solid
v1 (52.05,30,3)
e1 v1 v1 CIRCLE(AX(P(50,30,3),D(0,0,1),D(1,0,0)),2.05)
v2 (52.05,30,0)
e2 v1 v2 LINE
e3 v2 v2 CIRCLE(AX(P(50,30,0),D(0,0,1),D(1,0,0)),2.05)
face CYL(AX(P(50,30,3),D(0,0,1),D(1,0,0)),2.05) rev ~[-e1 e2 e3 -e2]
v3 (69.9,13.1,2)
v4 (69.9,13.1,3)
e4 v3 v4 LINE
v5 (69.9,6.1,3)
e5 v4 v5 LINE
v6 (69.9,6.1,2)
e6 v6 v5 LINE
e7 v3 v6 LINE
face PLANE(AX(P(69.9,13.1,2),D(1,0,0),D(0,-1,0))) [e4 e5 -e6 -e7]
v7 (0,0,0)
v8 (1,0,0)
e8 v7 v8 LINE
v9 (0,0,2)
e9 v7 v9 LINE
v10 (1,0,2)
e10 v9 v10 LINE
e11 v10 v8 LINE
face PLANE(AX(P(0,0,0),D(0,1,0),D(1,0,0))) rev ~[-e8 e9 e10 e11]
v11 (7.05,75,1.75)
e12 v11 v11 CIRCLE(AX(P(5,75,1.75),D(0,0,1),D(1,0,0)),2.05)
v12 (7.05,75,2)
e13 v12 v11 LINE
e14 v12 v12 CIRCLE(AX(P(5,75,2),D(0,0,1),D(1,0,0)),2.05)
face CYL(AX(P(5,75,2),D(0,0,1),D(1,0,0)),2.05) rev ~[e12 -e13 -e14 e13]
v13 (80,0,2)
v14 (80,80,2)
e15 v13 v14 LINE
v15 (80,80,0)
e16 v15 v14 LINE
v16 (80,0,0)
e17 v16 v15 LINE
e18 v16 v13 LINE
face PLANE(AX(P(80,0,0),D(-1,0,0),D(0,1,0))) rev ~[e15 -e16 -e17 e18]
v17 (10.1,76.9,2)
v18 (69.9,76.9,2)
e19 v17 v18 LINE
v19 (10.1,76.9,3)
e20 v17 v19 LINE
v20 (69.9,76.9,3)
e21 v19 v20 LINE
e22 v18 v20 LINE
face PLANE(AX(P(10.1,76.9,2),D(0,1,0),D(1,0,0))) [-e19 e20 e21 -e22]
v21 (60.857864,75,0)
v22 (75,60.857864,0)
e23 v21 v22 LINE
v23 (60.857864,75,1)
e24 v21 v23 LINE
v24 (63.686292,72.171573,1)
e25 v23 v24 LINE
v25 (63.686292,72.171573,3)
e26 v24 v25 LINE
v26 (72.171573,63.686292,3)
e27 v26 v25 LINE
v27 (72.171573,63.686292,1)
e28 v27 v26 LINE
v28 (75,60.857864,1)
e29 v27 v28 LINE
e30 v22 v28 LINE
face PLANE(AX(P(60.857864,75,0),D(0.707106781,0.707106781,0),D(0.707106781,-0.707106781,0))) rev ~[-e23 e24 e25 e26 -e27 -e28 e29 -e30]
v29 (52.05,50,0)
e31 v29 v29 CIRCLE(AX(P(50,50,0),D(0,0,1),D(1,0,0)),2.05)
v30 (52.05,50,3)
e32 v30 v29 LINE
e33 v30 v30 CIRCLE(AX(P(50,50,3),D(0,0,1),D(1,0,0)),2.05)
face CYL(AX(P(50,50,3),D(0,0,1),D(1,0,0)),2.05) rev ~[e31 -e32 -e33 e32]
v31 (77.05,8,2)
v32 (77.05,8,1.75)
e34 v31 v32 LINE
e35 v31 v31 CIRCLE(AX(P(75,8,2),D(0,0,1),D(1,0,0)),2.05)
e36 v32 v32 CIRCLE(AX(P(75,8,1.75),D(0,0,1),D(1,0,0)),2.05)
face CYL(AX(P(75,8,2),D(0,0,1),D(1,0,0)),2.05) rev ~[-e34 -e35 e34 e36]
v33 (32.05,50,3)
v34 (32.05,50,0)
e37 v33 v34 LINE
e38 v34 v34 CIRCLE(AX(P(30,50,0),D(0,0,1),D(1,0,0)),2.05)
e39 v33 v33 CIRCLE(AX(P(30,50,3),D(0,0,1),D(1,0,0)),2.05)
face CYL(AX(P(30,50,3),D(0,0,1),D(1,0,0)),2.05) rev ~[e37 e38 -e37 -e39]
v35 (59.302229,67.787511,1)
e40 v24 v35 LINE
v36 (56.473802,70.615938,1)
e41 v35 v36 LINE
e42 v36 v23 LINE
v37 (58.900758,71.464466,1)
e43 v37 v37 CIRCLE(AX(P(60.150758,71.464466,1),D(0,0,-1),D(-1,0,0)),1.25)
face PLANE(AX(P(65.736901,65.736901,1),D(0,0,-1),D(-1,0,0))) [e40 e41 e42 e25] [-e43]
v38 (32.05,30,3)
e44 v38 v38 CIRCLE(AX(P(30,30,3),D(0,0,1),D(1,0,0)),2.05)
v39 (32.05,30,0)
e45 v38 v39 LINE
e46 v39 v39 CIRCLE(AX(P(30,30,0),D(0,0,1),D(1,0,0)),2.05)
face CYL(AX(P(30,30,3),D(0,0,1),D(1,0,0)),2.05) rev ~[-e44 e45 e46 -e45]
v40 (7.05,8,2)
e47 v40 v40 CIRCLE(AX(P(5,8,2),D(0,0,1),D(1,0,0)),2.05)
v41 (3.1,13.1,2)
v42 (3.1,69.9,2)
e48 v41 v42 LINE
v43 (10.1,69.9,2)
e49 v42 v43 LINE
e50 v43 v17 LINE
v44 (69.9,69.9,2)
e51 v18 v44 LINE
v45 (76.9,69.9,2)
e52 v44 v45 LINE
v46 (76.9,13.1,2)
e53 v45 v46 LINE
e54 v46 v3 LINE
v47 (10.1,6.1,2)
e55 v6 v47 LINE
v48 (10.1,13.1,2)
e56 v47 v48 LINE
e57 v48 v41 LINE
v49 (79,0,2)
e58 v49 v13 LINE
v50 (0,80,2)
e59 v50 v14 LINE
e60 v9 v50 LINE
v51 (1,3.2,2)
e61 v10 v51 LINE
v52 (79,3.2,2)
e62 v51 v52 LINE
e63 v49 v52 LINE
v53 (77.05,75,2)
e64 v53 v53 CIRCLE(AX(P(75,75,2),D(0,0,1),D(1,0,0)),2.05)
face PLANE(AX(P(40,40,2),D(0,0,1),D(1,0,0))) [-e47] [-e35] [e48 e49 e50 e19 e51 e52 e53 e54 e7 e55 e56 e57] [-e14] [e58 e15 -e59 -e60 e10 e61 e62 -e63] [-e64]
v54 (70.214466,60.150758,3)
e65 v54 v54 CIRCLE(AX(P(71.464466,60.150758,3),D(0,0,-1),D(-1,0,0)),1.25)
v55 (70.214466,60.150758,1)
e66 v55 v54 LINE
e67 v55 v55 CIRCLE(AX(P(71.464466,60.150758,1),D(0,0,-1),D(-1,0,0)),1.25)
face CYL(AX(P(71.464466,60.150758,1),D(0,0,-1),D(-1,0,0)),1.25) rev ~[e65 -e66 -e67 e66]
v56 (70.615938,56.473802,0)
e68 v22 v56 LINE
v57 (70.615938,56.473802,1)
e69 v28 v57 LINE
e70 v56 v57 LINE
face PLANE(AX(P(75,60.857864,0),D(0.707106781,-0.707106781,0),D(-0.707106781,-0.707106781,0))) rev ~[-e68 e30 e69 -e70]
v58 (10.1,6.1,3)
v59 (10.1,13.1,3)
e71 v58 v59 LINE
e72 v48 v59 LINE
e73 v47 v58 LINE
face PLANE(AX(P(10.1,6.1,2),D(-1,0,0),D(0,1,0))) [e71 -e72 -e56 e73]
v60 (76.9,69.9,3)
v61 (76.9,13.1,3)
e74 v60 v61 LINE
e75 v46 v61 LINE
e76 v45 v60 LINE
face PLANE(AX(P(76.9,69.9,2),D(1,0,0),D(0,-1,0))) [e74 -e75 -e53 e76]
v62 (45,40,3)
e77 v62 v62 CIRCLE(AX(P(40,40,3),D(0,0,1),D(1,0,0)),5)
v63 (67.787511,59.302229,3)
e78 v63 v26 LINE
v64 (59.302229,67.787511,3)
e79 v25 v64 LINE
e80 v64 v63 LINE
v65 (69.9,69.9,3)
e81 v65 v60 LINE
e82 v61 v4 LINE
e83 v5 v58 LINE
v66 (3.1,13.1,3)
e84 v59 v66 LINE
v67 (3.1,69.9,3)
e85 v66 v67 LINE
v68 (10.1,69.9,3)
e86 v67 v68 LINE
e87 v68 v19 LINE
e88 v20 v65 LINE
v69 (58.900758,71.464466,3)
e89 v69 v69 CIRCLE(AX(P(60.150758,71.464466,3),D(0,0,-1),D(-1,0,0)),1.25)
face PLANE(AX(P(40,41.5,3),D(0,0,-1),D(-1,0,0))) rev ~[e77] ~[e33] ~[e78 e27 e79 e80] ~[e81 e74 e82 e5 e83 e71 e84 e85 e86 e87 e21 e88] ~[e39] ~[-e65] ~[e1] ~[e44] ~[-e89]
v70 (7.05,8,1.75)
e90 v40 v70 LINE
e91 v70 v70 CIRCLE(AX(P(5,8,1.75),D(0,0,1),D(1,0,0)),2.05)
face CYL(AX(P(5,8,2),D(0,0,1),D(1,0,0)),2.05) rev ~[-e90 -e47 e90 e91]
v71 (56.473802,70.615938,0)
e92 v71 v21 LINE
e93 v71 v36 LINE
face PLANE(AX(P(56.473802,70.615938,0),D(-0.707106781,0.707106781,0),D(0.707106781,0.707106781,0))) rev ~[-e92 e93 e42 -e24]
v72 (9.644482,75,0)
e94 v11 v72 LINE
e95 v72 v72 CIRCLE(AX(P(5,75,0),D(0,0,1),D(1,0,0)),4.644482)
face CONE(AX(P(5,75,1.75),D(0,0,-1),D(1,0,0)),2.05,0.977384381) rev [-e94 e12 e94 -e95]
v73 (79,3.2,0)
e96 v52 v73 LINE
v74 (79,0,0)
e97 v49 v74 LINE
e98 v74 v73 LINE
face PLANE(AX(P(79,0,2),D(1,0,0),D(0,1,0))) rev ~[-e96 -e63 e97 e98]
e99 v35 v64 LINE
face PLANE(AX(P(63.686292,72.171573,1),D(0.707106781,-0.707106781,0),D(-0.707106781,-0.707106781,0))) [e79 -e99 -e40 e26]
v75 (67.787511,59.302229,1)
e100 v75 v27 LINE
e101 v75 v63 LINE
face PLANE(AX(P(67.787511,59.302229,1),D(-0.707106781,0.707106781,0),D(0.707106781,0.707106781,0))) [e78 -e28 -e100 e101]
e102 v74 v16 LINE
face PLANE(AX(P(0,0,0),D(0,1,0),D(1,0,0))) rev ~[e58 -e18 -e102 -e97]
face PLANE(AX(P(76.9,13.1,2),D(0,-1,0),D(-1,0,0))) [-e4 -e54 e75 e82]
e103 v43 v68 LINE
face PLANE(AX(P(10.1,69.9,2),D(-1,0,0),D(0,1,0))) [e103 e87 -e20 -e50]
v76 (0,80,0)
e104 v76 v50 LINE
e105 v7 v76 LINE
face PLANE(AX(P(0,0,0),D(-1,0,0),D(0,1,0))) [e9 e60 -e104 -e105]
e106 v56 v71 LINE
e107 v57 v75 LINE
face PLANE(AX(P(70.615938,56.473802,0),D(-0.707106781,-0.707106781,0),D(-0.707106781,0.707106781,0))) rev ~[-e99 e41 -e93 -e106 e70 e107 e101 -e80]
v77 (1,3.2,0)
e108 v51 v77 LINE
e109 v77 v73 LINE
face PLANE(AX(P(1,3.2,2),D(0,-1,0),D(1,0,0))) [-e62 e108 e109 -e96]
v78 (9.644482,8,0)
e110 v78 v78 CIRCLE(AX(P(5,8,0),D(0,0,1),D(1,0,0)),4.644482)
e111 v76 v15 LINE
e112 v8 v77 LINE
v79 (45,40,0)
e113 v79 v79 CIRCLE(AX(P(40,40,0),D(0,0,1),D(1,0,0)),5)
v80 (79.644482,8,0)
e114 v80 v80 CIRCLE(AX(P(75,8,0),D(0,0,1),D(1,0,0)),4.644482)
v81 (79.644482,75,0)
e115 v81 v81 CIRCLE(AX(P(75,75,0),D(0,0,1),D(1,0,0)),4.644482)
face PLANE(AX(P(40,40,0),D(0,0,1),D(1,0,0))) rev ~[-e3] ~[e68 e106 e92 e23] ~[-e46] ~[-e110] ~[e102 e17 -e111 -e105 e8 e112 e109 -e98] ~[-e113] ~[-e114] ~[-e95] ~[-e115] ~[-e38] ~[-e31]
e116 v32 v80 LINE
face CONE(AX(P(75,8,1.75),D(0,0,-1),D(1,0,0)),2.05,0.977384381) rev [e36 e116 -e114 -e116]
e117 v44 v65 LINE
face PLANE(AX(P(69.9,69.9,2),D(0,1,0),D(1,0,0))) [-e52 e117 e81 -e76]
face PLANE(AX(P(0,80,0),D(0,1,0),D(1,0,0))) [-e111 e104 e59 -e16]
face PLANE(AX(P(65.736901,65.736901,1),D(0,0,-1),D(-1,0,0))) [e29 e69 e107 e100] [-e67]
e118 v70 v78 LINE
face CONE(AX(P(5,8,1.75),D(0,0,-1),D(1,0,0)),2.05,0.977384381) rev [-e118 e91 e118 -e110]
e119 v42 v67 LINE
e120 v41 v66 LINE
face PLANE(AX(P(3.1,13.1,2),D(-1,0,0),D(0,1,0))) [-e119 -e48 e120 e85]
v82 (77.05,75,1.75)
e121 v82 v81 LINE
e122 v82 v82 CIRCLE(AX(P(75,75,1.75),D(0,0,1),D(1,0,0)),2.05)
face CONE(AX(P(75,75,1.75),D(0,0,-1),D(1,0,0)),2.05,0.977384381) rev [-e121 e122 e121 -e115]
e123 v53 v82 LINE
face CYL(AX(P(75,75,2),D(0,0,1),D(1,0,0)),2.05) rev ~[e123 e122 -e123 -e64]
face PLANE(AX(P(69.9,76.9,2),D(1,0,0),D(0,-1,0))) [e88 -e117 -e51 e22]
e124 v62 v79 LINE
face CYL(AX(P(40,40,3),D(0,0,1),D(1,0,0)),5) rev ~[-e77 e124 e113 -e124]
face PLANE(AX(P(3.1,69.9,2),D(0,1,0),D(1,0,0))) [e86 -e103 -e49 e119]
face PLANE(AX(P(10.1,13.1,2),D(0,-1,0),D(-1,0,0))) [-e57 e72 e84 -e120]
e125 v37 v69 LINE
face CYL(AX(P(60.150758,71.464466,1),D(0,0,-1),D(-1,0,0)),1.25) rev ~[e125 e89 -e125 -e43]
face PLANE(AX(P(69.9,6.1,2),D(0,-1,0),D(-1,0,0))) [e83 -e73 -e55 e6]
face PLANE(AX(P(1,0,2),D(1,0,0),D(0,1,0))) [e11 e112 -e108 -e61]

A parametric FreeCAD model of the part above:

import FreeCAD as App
import Part
import Sketcher
Q = App.Units.Quantity


def edges_at(feature, points):
    """Names of the edges that pass closest to the given points."""
    edges = feature.Shape.Edges
    near = lambda p: min(range(len(edges)), key=lambda i: edges[i].distToShape(Part.Vertex(*p))[0])
    return sorted({f"Edge{near(p) + 1}" for p in points})

doc = App.newDocument("Part")
body = doc.addObject("PartDesign::Body", "Body")

sketch1 = body.newObject("Sketcher::SketchObject", "Sketch")
sketch1.AttachmentSupport = (doc.getObject("XY_Plane"), [""])
sketch1.MapMode = "FlatFace"
sketch1.addGeometry([
    Part.LineSegment(App.Vector(0, 80, 0), App.Vector(0, 0, 0)),
    Part.LineSegment(App.Vector(0, 0, 0), App.Vector(80, 0, 0)),
    Part.LineSegment(App.Vector(80, 0, 0), App.Vector(80, 80, 0)),
    Part.LineSegment(App.Vector(80, 80, 0), App.Vector(0, 80, 0)),
], False)
sketch1.addConstraint([
    Sketcher.Constraint("Coincident", 0, 2, 1, 1),
    Sketcher.Constraint("Coincident", 1, 2, 2, 1),
    Sketcher.Constraint("Coincident", 2, 2, 3, 1),
    Sketcher.Constraint("Coincident", 3, 2, 0, 1),
    Sketcher.Constraint("Vertical", 0),
    Sketcher.Constraint("Horizontal", 1),
    Sketcher.Constraint("Vertical", 2),
    Sketcher.Constraint("Horizontal", 3),
    Sketcher.Constraint("Coincident", 0, 2, -1, 1),
    Sketcher.Constraint("Equal", 3, 0),
    Sketcher.Constraint("DistanceX", 1, 1, 1, 2, Q("80 mm")),
])
pad1 = body.newObject("PartDesign::Pad", "Pad")
pad1.Profile = sketch1
pad1.Length = 2

sketch2 = body.newObject("Sketcher::SketchObject", "Sketch001")
sketch2.AttachmentSupport = (doc.getObject("XY_Plane"), [""])
sketch2.MapMode = "FlatFace"
sketch2.AttachmentOffset = App.Placement(App.Vector(0, 0, 2), App.Rotation())
sketch2.addGeometry([
    Part.LineSegment(App.Vector(10, 13, 0), App.Vector(10, 6, 0)),
    Part.LineSegment(App.Vector(10, 6, 0), App.Vector(70, 6, 0)),
    Part.LineSegment(App.Vector(70, 6, 0), App.Vector(70, 13, 0)),
    Part.LineSegment(App.Vector(70, 13, 0), App.Vector(77, 13, 0)),
    Part.LineSegment(App.Vector(77, 13, 0), App.Vector(77, 70, 0)),
    Part.LineSegment(App.Vector(77, 70, 0), App.Vector(70, 70, 0)),
    Part.LineSegment(App.Vector(70, 70, 0), App.Vector(70, 77, 0)),
    Part.LineSegment(App.Vector(70, 77, 0), App.Vector(10, 77, 0)),
    Part.LineSegment(App.Vector(10, 77, 0), App.Vector(10, 70, 0)),
    Part.LineSegment(App.Vector(10, 70, 0), App.Vector(3, 70, 0)),
    Part.LineSegment(App.Vector(3, 70, 0), App.Vector(3, 13, 0)),
    Part.LineSegment(App.Vector(3, 13, 0), App.Vector(10, 13, 0)),
], False)
sketch2.addConstraint([
    Sketcher.Constraint("Coincident", 0, 2, 1, 1),
    Sketcher.Constraint("Coincident", 1, 2, 2, 1),
    Sketcher.Constraint("Coincident", 2, 2, 3, 1),
    Sketcher.Constraint("Coincident", 3, 2, 4, 1),
    Sketcher.Constraint("Coincident", 4, 2, 5, 1),
    Sketcher.Constraint("Coincident", 5, 2, 6, 1),
    Sketcher.Constraint("Coincident", 6, 2, 7, 1),
    Sketcher.Constraint("Coincident", 7, 2, 8, 1),
    Sketcher.Constraint("Coincident", 8, 2, 9, 1),
    Sketcher.Constraint("Coincident", 9, 2, 10, 1),
    Sketcher.Constraint("Coincident", 10, 2, 11, 1),
    Sketcher.Constraint("Coincident", 11, 2, 0, 1),
    Sketcher.Constraint("Vertical", 0),
    Sketcher.Constraint("Horizontal", 1),
    Sketcher.Constraint("Vertical", 2),
    Sketcher.Constraint("Horizontal", 3),
    Sketcher.Constraint("Vertical", 4),
    Sketcher.Constraint("Horizontal", 5),
    Sketcher.Constraint("Vertical", 6),
    Sketcher.Constraint("Horizontal", 7),
    Sketcher.Constraint("Vertical", 8),
    Sketcher.Constraint("Horizontal", 9),
    Sketcher.Constraint("Vertical", 10),
    Sketcher.Constraint("Horizontal", 11),
    Sketcher.Constraint("Horizontal", 5, 2, 8, 2),
    Sketcher.Constraint("Horizontal", 3, 2, 10, 2),
    Sketcher.Constraint("Vertical", 2, 2, 5, 2),
    Sketcher.Constraint("Vertical", 0, 2, 7, 2),
    Sketcher.Constraint("Equal", 5, 9),
    Sketcher.Constraint("Equal", 11, 0),
    Sketcher.Constraint("Equal", 2, 6),
    Sketcher.Constraint("DistanceX", 3, 1, 3, 2, Q("7 mm")),
    Sketcher.Constraint("DistanceX", 1, 1, 1, 2, Q("59.8 mm")),
    Sketcher.Constraint("DistanceY", 4, 1, 4, 2, Q("56.8 mm")),
    Sketcher.Constraint("DistanceX", -1, 1, 0, 2, Q("10.1 mm")),
    Sketcher.Constraint("DistanceY", -1, 1, 0, 2, Q("6.1 mm")),
])
pad2 = body.newObject("PartDesign::Pad", "Pad001")
pad2.Profile = sketch2
pad2.Length = 1

sketch3 = body.newObject("Sketcher::SketchObject", "Sketch002")
sketch3.AttachmentSupport = (doc.getObject("XY_Plane"), [""])
sketch3.MapMode = "FlatFace"
sketch3.AttachmentOffset = App.Placement(App.Vector(0, 0, 2), App.Rotation())
sketch3.addGeometry([
    Part.Circle(App.Vector(5, 75, 0), App.Vector(0, 0, 1), 2),
    Part.Circle(App.Vector(75, 75, 0), App.Vector(0, 0, 1), 2),
    Part.Circle(App.Vector(75, 8, 0), App.Vector(0, 0, 1), 2),
    Part.Circle(App.Vector(5, 8, 0), App.Vector(0, 0, 1), 2),
    Part.LineSegment(App.Vector(1, 3.2, 0), App.Vector(1, 0, 0)),
    Part.LineSegment(App.Vector(1, 0, 0), App.Vector(79, 0, 0)),
    Part.LineSegment(App.Vector(79, 0, 0), App.Vector(79, 3.2, 0)),
    Part.LineSegment(App.Vector(79, 3.2, 0), App.Vector(1, 3.2, 0)),
], False)
sketch3.addConstraint([
    Sketcher.Constraint("Coincident", 4, 2, 5, 1),
    Sketcher.Constraint("Coincident", 5, 2, 6, 1),
    Sketcher.Constraint("Coincident", 6, 2, 7, 1),
    Sketcher.Constraint("Coincident", 7, 2, 4, 1),
    Sketcher.Constraint("Vertical", 4),
    Sketcher.Constraint("Horizontal", 5),
    Sketcher.Constraint("Vertical", 6),
    Sketcher.Constraint("Horizontal", 7),
    Sketcher.Constraint("Equal", 0, 1),
    Sketcher.Constraint("Equal", 1, 2),
    Sketcher.Constraint("Equal", 2, 3),
    Sketcher.Constraint("PointOnObject", 4, 2, -1),
    Sketcher.Constraint("Horizontal", 0, 3, 1, 3),
    Sketcher.Constraint("Horizontal", 2, 3, 3, 3),
    Sketcher.Constraint("Vertical", 1, 3, 2, 3),
    Sketcher.Constraint("Vertical", 0, 3, 3, 3),
    Sketcher.Constraint("Diameter", 0, Q("4.1 mm")),
    Sketcher.Constraint("DistanceX", 5, 1, 5, 2, Q("78 mm")),
    Sketcher.Constraint("DistanceY", 4, 2, 4, 1, Q("3.2 mm")),
    Sketcher.Constraint("DistanceX", -1, 1, 0, 3, Q("5 mm")),
    Sketcher.Constraint("DistanceY", -1, 1, 0, 3, Q("75 mm")),
    Sketcher.Constraint("DistanceX", -1, 1, 1, 3, Q("75 mm")),
    Sketcher.Constraint("DistanceY", -1, 1, 2, 3, Q("8 mm")),
    Sketcher.Constraint("DistanceX", -1, 1, 4, 2, Q("1 mm")),
])
pocket1 = body.newObject("PartDesign::Pocket", "Pocket")
pocket1.Profile = sketch3
pocket1.Type = "ThroughAll"

sketch4 = body.newObject("Sketcher::SketchObject", "Sketch003")
sketch4.AttachmentSupport = (doc.getObject("XY_Plane"), [""])
sketch4.MapMode = "FlatFace"
sketch4.AttachmentOffset = App.Placement(App.Vector(0, 0, 3), App.Rotation())
sketch4.addGeometry([
    Part.Circle(App.Vector(40, 40, 0), App.Vector(0, 0, 1), 5),
    Part.Circle(App.Vector(30, 50, 0), App.Vector(0, 0, 1), 2),
    Part.Circle(App.Vector(30, 30, 0), App.Vector(0, 0, 1), 2),
    Part.Circle(App.Vector(50, 30, 0), App.Vector(0, 0, 1), 2),
    Part.Circle(App.Vector(50, 50, 0), App.Vector(0, 0, 1), 2),
], False)
sketch4.addConstraint([
    Sketcher.Constraint("Equal", 1, 2),
    Sketcher.Constraint("Equal", 2, 3),
    Sketcher.Constraint("Equal", 3, 4),
    Sketcher.Constraint("Horizontal", 2, 3, 3, 3),
    Sketcher.Constraint("Horizontal", 1, 3, 4, 3),
    Sketcher.Constraint("Vertical", 1, 3, 2, 3),
    Sketcher.Constraint("Vertical", 3, 3, 4, 3),
    Sketcher.Constraint("Diameter", 0, Q("10 mm")),
    Sketcher.Constraint("Diameter", 1, Q("4.1 mm")),
    Sketcher.Constraint("DistanceX", -1, 1, 0, 3, Q("40 mm")),
    Sketcher.Constraint("DistanceY", -1, 1, 0, 3, Q("40 mm")),
    Sketcher.Constraint("DistanceX", -1, 1, 1, 3, Q("30 mm")),
    Sketcher.Constraint("DistanceY", -1, 1, 1, 3, Q("50 mm")),
    Sketcher.Constraint("DistanceY", -1, 1, 2, 3, Q("30 mm")),
    Sketcher.Constraint("DistanceX", -1, 1, 3, 3, Q("50 mm")),
])
pocket2 = body.newObject("PartDesign::Pocket", "Pocket001")
pocket2.Profile = sketch4
pocket2.Type = "ThroughAll"
doc.recompute()

chamfer = body.newObject("PartDesign::Chamfer", "Chamfer")
chamfer.Base = (pocket2, edges_at(pocket2, [(2.95, 75, 0)]))
chamfer.ChamferType = "Two distances"
chamfer.Size = 1.75
chamfer.Size2 = 2.594482
chamfer.FlipDirection = True
doc.recompute()

chamfer2 = body.newObject("PartDesign::Chamfer", "Chamfer001")
chamfer2.Base = (chamfer, edges_at(chamfer, [(72.95, 75, 0)]))
chamfer2.ChamferType = "Two distances"
chamfer2.Size = 1.75
chamfer2.Size2 = 2.594482
chamfer2.FlipDirection = True
doc.recompute()

chamfer3 = body.newObject("PartDesign::Chamfer", "Chamfer002")
chamfer3.Base = (chamfer2, edges_at(chamfer2, [(72.95, 8, 0)]))
chamfer3.ChamferType = "Two distances"
chamfer3.Size = 1.75
chamfer3.Size2 = 2.594482
chamfer3.FlipDirection = True
doc.recompute()

chamfer4 = body.newObject("PartDesign::Chamfer", "Chamfer003")
chamfer4.Base = (chamfer3, edges_at(chamfer3, [(2.95, 8, 0)]))
chamfer4.ChamferType = "Two distances"
chamfer4.Size = 1.75
chamfer4.Size2 = 2.594482
chamfer4.FlipDirection = True

sketch5 = body.newObject("Sketcher::SketchObject", "Sketch004")
sketch5.AttachmentSupport = (doc.getObject("XY_Plane"), [""])
sketch5.MapMode = "FlatFace"
sketch5.addGeometry([
    Part.LineSegment(App.Vector(71, 56, 0), App.Vector(56, 71, 0)),
    Part.LineSegment(App.Vector(56, 71, 0), App.Vector(61, 75, 0)),
    Part.LineSegment(App.Vector(61, 75, 0), App.Vector(75, 61, 0)),
    Part.LineSegment(App.Vector(75, 61, 0), App.Vector(71, 56, 0)),
], False)
sketch5.addConstraint([
    Sketcher.Constraint("Coincident", 0, 2, 1, 1),
    Sketcher.Constraint("Coincident", 1, 2, 2, 1),
    Sketcher.Constraint("Coincident", 2, 2, 3, 1),
    Sketcher.Constraint("Coincident", 3, 2, 0, 1),
    Sketcher.Constraint("Perpendicular", 0, 1),
    Sketcher.Constraint("Perpendicular", 1, 2),
    Sketcher.Constraint("Perpendicular", 2, 3),
    Sketcher.Constraint("Angle", 0, Q("135 deg")),
    Sketcher.Constraint("Distance", 0, Q("20 mm")),
    Sketcher.Constraint("DistanceY", -1, 1, 1, 2, Q("75 mm")),
    Sketcher.Constraint("DistanceX", -1, 1, 2, 2, Q("75 mm")),
    Sketcher.Constraint("Distance", 1, Q("6.2 mm")),
])
pocket3 = body.newObject("PartDesign::Pocket", "Pocket002")
pocket3.Profile = sketch5
pocket3.Length = 1
pocket3.Reversed = True

sketch6 = body.newObject("Sketcher::SketchObject", "Sketch005")
sketch6.AttachmentSupport = (doc.getObject("XY_Plane"), [""])
sketch6.MapMode = "FlatFace"
sketch6.AttachmentOffset = App.Placement(App.Vector(0, 0, 1), App.Rotation())
sketch6.addGeometry([
    Part.Circle(App.Vector(60.2, 71.5, 0), App.Vector(0, 0, 1), 1.2),
    Part.Circle(App.Vector(71.5, 60.2, 0), App.Vector(0, 0, 1), 1.2),
    Part.LineSegment(App.Vector(72.2, 63.7, 0), App.Vector(67.8, 59.3, 0)),
    Part.LineSegment(App.Vector(67.8, 59.3, 0), App.Vector(59.3, 67.8, 0)),
    Part.LineSegment(App.Vector(59.3, 67.8, 0), App.Vector(63.7, 72.2, 0)),
    Part.LineSegment(App.Vector(63.7, 72.2, 0), App.Vector(72.2, 63.7, 0)),
], False)
sketch6.addConstraint([
    Sketcher.Constraint("Coincident", 2, 2, 3, 1),
    Sketcher.Constraint("Coincident", 3, 2, 4, 1),
    Sketcher.Constraint("Coincident", 4, 2, 5, 1),
    Sketcher.Constraint("Coincident", 5, 2, 2, 1),
    Sketcher.Constraint("Equal", 0, 1),
    Sketcher.Constraint("Perpendicular", 2, 3),
    Sketcher.Constraint("Perpendicular", 3, 4),
    Sketcher.Constraint("Perpendicular", 4, 5),
    Sketcher.Constraint("Diameter", 0, Q("2.5 mm")),
    Sketcher.Constraint("Angle", 2, Q("-135 deg")),
    Sketcher.Constraint("Distance", 3, Q("12 mm")),
    Sketcher.Constraint("Distance", 2, Q("6.2 mm")),
    Sketcher.Constraint("DistanceX", -1, 1, 2, 2, Q("67.787511 mm")),
    Sketcher.Constraint("DistanceY", -1, 1, 2, 2, Q("59.302229 mm")),
    Sketcher.Constraint("DistanceX", 0, 3, 1, 3, Q("11.313708 mm")),
    Sketcher.Constraint("DistanceY", 1, 3, 0, 3, Q("11.313708 mm")),
    Sketcher.Constraint("DistanceY", 2, 2, 1, 3, Q("0.848528 mm")),
    Sketcher.Constraint("DistanceX", 3, 2, 0, 3, Q("0.848528 mm")),
])
pocket4 = body.newObject("PartDesign::Pocket", "Pocket003")
pocket4.Profile = sketch6
pocket4.Type = "ThroughAll"
pocket4.Reversed = True

doc.recompute()
